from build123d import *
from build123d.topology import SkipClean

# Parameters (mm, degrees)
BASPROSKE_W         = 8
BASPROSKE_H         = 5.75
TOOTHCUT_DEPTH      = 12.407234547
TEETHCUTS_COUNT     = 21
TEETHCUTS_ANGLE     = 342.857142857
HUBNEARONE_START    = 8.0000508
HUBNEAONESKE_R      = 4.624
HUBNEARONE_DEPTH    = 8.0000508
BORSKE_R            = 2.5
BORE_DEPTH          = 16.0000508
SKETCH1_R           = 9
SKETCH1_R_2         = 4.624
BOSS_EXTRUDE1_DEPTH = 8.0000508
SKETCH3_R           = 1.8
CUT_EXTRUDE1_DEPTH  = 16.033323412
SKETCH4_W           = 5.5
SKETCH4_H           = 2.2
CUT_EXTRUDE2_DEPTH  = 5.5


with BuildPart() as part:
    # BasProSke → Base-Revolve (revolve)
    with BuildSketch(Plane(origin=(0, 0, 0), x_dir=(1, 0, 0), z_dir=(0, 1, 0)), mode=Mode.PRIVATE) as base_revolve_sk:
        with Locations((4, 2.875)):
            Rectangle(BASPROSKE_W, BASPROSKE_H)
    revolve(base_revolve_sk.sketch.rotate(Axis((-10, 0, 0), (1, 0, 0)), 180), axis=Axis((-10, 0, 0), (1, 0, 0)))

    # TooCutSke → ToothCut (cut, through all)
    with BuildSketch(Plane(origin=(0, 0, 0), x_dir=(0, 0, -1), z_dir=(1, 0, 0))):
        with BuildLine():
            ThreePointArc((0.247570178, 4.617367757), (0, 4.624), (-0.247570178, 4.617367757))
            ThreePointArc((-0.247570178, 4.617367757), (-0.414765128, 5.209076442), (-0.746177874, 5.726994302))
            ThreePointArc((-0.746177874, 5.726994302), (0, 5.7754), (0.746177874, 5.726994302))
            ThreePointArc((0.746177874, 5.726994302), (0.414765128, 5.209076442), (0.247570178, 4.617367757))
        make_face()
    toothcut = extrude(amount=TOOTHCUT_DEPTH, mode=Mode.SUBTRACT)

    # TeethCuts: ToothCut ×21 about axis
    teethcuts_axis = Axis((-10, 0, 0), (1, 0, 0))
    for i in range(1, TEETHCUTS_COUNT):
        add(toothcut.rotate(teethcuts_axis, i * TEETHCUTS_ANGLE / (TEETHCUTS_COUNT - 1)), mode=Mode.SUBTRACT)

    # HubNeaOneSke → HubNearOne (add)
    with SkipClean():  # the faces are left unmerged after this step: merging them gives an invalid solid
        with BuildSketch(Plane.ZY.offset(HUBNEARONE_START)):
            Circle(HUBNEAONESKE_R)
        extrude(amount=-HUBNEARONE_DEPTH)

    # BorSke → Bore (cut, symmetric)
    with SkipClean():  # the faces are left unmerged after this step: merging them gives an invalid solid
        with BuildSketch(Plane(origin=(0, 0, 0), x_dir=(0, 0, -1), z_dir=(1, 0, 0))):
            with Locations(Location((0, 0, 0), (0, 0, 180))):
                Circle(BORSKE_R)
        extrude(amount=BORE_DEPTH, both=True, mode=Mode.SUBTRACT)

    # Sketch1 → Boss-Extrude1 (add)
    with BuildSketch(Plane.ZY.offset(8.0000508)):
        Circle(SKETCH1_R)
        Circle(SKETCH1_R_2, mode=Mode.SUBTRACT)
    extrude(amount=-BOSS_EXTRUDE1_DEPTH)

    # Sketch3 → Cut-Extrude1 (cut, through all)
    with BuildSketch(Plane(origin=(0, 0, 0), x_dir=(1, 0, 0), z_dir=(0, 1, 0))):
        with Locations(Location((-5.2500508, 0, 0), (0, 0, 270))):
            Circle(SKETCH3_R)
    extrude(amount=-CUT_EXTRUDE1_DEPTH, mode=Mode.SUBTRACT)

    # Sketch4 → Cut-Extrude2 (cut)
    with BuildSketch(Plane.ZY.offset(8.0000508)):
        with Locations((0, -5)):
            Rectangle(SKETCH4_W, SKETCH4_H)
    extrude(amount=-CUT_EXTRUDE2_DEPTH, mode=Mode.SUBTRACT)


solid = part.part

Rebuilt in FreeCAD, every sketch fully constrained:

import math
import FreeCAD as App
import Part
import Sketcher
Q = App.Units.Quantity

doc = App.newDocument("Part")
body = doc.addObject("PartDesign::Body", "Body")

sketch1 = doc.addObject("Sketcher::SketchObject", "Sketch")
body.addObject(sketch1)
sketch1.AttachmentSupport = (doc.XZ_Plane, [""])
sketch1.MapMode = "FlatFace"
sketch1.addGeometry([
    Part.LineSegment(App.Vector(0, -6, 0), App.Vector(0, 0, 0)),
    Part.LineSegment(App.Vector(0, 0, 0), App.Vector(8, 0, 0)),
    Part.LineSegment(App.Vector(8, 0, 0), App.Vector(8, -6, 0)),
    Part.LineSegment(App.Vector(8, -6, 0), App.Vector(0, -6, 0)),
], False)
sketch1.addConstraint([
    Sketcher.Constraint("Coincident", 0, 2, 1, 1),
    Sketcher.Constraint("Coincident", 1, 2, 2, 1),
    Sketcher.Constraint("Coincident", 2, 2, 3, 1),
    Sketcher.Constraint("Coincident", 3, 2, 0, 1),
    Sketcher.Constraint("Vertical", 0),
    Sketcher.Constraint("Horizontal", 1),
    Sketcher.Constraint("Vertical", 2),
    Sketcher.Constraint("Horizontal", 3),
    Sketcher.Constraint("Coincident", 0, 2, -1, 1),
    Sketcher.Constraint("DistanceX", 1, 1, 1, 2, Q("8 mm")),
    Sketcher.Constraint("DistanceY", 0, 1, 0, 2, Q("5.75 mm")),
])
revolution = doc.addObject("PartDesign::Revolution", "Revolution")
body.addObject(revolution)
revolution.Profile = sketch1
revolution.ReferenceAxis = (sketch1, ["H_Axis"])
revolution.Angle = 360

sketch2 = doc.addObject("Sketcher::SketchObject", "Sketch001")
body.addObject(sketch2)
sketch2.AttachmentSupport = (doc.YZ_Plane, [""])
sketch2.MapMode = "FlatFace"
sketch2.addGeometry([
    Part.ArcOfCircle(Part.Circle(App.Vector(0, 0, 0), App.Vector(0, 0, 1), 4.62), math.radians(-3.07), math.radians(3.07)),
    Part.ArcOfCircle(Part.Circle(App.Vector(4.35, -2.33, 0), App.Vector(0, 0, 1), 2.1), math.radians(49), math.radians(83)),
    Part.ArcOfCircle(Part.Circle(App.Vector(0, 0, 0), App.Vector(0, 0, 1), 5.78), math.radians(-7.42), math.radians(7.42)),
    Part.ArcOfCircle(Part.Circle(App.Vector(4.35, 2.33, 0), App.Vector(0, 0, 1), 2.1), math.radians(-83), math.radians(-49)),
], False)
sketch2.addConstraint([
    Sketcher.Constraint("Coincident", 0, 1, 1, 2),
    Sketcher.Constraint("Coincident", 1, 1, 2, 1),
    Sketcher.Constraint("Coincident", 2, 2, 3, 2),
    Sketcher.Constraint("Coincident", 3, 1, 0, 2),
    Sketcher.Constraint("Coincident", 0, 3, -1, 1),
    Sketcher.Constraint("Coincident", 2, 3, -1, 1),
    Sketcher.Constraint("Equal", 1, 3),
    Sketcher.Constraint("Symmetric", 1, 3, 3, 3, -1),
    Sketcher.Constraint("Radius", 1, Q("2.1 mm")),
    Sketcher.Constraint("Radius", 0, Q("4.624 mm")),
    Sketcher.Constraint("Radius", 2, Q("5.7754 mm")),
    Sketcher.Constraint("DistanceX", -1, 1, 1, 3, Q("4.34835 mm")),
    Sketcher.Constraint("DistanceY", 0, 1, -1, 1, Q("0.24757 mm")),
])
pocket1 = doc.addObject("PartDesign::Pocket", "Pocket")
body.addObject(pocket1)
pocket1.Profile = sketch2
pocket1.Type = "ThroughAll"
pocket1.Reversed = True
doc.recompute()

polarpattern = doc.addObject("PartDesign::PolarPattern", "PolarPattern")
body.addObject(polarpattern)
polarpattern.Originals = [pocket1]
polarpattern.Axis = (doc.X_Axis, [""])
polarpattern.Angle = 360
polarpattern.Occurrences = 21
body.Tip = polarpattern

sketch3 = doc.addObject("Sketcher::SketchObject", "Sketch002")
body.addObject(sketch3)
sketch3.AttachmentSupport = (doc.YZ_Plane, [""])
sketch3.MapMode = "FlatFace"
sketch3.AttachmentOffset = App.Placement(App.Vector(0, 0, -8.000051), App.Rotation())
sketch3.addGeometry(Part.Circle(App.Vector(0, 0, 0), App.Vector(0, 0, 1), 4.6), False)
sketch3.addConstraint([
    Sketcher.Constraint("Coincident", 0, 3, -1, 1),
    Sketcher.Constraint("Diameter", 0, Q("9.248 mm")),
])
pad1 = doc.addObject("PartDesign::Pad", "Pad")
body.addObject(pad1)
pad1.Profile = sketch3
pad1.Length = 8.000051

sketch4 = doc.addObject("Sketcher::SketchObject", "Sketch003")
body.addObject(sketch4)
sketch4.AttachmentSupport = (doc.YZ_Plane, [""])
sketch4.MapMode = "FlatFace"
sketch4.addGeometry(Part.Circle(App.Vector(0, 0, 0), App.Vector(0, 0, 1), 2.5), False)
sketch4.addConstraint([
    Sketcher.Constraint("Coincident", 0, 3, -1, 1),
    Sketcher.Constraint("Diameter", 0, Q("5 mm")),
])
pocket2 = doc.addObject("PartDesign::Pocket", "Pocket001")
body.addObject(pocket2)
pocket2.Profile = sketch4
pocket2.Length = 32.000102
pocket2.Midplane = True

sketch5 = doc.addObject("Sketcher::SketchObject", "Sketch004")
body.addObject(sketch5)
sketch5.AttachmentSupport = (doc.YZ_Plane, [""])
sketch5.MapMode = "FlatFace"
sketch5.AttachmentOffset = App.Placement(App.Vector(0, 0, -8.000051), App.Rotation())
sketch5.addGeometry([
    Part.Circle(App.Vector(0, 0, 0), App.Vector(0, 0, 1), 9),
    Part.Circle(App.Vector(0, 0, 0), App.Vector(0, 0, 1), 4.6),
], False)
sketch5.addConstraint([
    Sketcher.Constraint("Coincident", 0, 3, -1, 1),
    Sketcher.Constraint("Coincident", 1, 3, -1, 1),
    Sketcher.Constraint("Diameter", 0, Q("18 mm")),
    Sketcher.Constraint("Diameter", 1, Q("9.248 mm")),
])
pad2 = doc.addObject("PartDesign::Pad", "Pad001")
body.addObject(pad2)
pad2.Profile = sketch5
pad2.Length = 8.000051

sketch6 = doc.addObject("Sketcher::SketchObject", "Sketch005")
body.addObject(sketch6)
sketch6.AttachmentSupport = (doc.XZ_Plane, [""])
sketch6.MapMode = "FlatFace"
sketch6.addGeometry(Part.Circle(App.Vector(-5.3, 0, 0), App.Vector(0, 0, 1), 1.8), False)
sketch6.addConstraint([
    Sketcher.Constraint("PointOnObject", 0, 3, -1),
    Sketcher.Constraint("Diameter", 0, Q("3.6 mm")),
    Sketcher.Constraint("DistanceX", 0, 3, -1, 1, Q("5.250051 mm")),
])
pocket3 = doc.addObject("PartDesign::Pocket", "Pocket002")
body.addObject(pocket3)
pocket3.Profile = sketch6
pocket3.Type = "ThroughAll"
pocket3.Reversed = True

sketch7 = doc.addObject("Sketcher::SketchObject", "Sketch006")
body.addObject(sketch7)
sketch7.AttachmentSupport = (doc.YZ_Plane, [""])
sketch7.MapMode = "FlatFace"
sketch7.AttachmentOffset = App.Placement(App.Vector(0, 0, -8.000051), App.Rotation())
sketch7.addGeometry([
    Part.LineSegment(App.Vector(-3.9, -2.8, 0), App.Vector(-6.1, -2.8, 0)),
    Part.LineSegment(App.Vector(-6.1, -2.8, 0), App.Vector(-6.1, 2.8, 0)),
    Part.LineSegment(App.Vector(-6.1, 2.8, 0), App.Vector(-3.9, 2.8, 0)),
    Part.LineSegment(App.Vector(-3.9, 2.8, 0), App.Vector(-3.9, -2.8, 0)),
], False)
sketch7.addConstraint([
    Sketcher.Constraint("Coincident", 0, 2, 1, 1),
    Sketcher.Constraint("Coincident", 1, 2, 2, 1),
    Sketcher.Constraint("Coincident", 2, 2, 3, 1),
    Sketcher.Constraint("Coincident", 3, 2, 0, 1),
    Sketcher.Constraint("Horizontal", 0),
    Sketcher.Constraint("Vertical", 1),
    Sketcher.Constraint("Horizontal", 2),
    Sketcher.Constraint("Vertical", 3),
    Sketcher.Constraint("DistanceX", 0, 2, 0, 1, Q("2.2 mm")),
    Sketcher.Constraint("DistanceY", 1, 1, 1, 2, Q("5.5 mm")),
    Sketcher.Constraint("DistanceX", 0, 2, -1, 1, Q("6.1 mm")),
    Sketcher.Constraint("DistanceY", 0, 2, -1, 1, Q("2.75 mm")),
])
pocket4 = doc.addObject("PartDesign::Pocket", "Pocket003")
body.addObject(pocket4)
pocket4.Profile = sketch7
pocket4.Length = 5.5
pocket4.Reversed = True

doc.recompute()
